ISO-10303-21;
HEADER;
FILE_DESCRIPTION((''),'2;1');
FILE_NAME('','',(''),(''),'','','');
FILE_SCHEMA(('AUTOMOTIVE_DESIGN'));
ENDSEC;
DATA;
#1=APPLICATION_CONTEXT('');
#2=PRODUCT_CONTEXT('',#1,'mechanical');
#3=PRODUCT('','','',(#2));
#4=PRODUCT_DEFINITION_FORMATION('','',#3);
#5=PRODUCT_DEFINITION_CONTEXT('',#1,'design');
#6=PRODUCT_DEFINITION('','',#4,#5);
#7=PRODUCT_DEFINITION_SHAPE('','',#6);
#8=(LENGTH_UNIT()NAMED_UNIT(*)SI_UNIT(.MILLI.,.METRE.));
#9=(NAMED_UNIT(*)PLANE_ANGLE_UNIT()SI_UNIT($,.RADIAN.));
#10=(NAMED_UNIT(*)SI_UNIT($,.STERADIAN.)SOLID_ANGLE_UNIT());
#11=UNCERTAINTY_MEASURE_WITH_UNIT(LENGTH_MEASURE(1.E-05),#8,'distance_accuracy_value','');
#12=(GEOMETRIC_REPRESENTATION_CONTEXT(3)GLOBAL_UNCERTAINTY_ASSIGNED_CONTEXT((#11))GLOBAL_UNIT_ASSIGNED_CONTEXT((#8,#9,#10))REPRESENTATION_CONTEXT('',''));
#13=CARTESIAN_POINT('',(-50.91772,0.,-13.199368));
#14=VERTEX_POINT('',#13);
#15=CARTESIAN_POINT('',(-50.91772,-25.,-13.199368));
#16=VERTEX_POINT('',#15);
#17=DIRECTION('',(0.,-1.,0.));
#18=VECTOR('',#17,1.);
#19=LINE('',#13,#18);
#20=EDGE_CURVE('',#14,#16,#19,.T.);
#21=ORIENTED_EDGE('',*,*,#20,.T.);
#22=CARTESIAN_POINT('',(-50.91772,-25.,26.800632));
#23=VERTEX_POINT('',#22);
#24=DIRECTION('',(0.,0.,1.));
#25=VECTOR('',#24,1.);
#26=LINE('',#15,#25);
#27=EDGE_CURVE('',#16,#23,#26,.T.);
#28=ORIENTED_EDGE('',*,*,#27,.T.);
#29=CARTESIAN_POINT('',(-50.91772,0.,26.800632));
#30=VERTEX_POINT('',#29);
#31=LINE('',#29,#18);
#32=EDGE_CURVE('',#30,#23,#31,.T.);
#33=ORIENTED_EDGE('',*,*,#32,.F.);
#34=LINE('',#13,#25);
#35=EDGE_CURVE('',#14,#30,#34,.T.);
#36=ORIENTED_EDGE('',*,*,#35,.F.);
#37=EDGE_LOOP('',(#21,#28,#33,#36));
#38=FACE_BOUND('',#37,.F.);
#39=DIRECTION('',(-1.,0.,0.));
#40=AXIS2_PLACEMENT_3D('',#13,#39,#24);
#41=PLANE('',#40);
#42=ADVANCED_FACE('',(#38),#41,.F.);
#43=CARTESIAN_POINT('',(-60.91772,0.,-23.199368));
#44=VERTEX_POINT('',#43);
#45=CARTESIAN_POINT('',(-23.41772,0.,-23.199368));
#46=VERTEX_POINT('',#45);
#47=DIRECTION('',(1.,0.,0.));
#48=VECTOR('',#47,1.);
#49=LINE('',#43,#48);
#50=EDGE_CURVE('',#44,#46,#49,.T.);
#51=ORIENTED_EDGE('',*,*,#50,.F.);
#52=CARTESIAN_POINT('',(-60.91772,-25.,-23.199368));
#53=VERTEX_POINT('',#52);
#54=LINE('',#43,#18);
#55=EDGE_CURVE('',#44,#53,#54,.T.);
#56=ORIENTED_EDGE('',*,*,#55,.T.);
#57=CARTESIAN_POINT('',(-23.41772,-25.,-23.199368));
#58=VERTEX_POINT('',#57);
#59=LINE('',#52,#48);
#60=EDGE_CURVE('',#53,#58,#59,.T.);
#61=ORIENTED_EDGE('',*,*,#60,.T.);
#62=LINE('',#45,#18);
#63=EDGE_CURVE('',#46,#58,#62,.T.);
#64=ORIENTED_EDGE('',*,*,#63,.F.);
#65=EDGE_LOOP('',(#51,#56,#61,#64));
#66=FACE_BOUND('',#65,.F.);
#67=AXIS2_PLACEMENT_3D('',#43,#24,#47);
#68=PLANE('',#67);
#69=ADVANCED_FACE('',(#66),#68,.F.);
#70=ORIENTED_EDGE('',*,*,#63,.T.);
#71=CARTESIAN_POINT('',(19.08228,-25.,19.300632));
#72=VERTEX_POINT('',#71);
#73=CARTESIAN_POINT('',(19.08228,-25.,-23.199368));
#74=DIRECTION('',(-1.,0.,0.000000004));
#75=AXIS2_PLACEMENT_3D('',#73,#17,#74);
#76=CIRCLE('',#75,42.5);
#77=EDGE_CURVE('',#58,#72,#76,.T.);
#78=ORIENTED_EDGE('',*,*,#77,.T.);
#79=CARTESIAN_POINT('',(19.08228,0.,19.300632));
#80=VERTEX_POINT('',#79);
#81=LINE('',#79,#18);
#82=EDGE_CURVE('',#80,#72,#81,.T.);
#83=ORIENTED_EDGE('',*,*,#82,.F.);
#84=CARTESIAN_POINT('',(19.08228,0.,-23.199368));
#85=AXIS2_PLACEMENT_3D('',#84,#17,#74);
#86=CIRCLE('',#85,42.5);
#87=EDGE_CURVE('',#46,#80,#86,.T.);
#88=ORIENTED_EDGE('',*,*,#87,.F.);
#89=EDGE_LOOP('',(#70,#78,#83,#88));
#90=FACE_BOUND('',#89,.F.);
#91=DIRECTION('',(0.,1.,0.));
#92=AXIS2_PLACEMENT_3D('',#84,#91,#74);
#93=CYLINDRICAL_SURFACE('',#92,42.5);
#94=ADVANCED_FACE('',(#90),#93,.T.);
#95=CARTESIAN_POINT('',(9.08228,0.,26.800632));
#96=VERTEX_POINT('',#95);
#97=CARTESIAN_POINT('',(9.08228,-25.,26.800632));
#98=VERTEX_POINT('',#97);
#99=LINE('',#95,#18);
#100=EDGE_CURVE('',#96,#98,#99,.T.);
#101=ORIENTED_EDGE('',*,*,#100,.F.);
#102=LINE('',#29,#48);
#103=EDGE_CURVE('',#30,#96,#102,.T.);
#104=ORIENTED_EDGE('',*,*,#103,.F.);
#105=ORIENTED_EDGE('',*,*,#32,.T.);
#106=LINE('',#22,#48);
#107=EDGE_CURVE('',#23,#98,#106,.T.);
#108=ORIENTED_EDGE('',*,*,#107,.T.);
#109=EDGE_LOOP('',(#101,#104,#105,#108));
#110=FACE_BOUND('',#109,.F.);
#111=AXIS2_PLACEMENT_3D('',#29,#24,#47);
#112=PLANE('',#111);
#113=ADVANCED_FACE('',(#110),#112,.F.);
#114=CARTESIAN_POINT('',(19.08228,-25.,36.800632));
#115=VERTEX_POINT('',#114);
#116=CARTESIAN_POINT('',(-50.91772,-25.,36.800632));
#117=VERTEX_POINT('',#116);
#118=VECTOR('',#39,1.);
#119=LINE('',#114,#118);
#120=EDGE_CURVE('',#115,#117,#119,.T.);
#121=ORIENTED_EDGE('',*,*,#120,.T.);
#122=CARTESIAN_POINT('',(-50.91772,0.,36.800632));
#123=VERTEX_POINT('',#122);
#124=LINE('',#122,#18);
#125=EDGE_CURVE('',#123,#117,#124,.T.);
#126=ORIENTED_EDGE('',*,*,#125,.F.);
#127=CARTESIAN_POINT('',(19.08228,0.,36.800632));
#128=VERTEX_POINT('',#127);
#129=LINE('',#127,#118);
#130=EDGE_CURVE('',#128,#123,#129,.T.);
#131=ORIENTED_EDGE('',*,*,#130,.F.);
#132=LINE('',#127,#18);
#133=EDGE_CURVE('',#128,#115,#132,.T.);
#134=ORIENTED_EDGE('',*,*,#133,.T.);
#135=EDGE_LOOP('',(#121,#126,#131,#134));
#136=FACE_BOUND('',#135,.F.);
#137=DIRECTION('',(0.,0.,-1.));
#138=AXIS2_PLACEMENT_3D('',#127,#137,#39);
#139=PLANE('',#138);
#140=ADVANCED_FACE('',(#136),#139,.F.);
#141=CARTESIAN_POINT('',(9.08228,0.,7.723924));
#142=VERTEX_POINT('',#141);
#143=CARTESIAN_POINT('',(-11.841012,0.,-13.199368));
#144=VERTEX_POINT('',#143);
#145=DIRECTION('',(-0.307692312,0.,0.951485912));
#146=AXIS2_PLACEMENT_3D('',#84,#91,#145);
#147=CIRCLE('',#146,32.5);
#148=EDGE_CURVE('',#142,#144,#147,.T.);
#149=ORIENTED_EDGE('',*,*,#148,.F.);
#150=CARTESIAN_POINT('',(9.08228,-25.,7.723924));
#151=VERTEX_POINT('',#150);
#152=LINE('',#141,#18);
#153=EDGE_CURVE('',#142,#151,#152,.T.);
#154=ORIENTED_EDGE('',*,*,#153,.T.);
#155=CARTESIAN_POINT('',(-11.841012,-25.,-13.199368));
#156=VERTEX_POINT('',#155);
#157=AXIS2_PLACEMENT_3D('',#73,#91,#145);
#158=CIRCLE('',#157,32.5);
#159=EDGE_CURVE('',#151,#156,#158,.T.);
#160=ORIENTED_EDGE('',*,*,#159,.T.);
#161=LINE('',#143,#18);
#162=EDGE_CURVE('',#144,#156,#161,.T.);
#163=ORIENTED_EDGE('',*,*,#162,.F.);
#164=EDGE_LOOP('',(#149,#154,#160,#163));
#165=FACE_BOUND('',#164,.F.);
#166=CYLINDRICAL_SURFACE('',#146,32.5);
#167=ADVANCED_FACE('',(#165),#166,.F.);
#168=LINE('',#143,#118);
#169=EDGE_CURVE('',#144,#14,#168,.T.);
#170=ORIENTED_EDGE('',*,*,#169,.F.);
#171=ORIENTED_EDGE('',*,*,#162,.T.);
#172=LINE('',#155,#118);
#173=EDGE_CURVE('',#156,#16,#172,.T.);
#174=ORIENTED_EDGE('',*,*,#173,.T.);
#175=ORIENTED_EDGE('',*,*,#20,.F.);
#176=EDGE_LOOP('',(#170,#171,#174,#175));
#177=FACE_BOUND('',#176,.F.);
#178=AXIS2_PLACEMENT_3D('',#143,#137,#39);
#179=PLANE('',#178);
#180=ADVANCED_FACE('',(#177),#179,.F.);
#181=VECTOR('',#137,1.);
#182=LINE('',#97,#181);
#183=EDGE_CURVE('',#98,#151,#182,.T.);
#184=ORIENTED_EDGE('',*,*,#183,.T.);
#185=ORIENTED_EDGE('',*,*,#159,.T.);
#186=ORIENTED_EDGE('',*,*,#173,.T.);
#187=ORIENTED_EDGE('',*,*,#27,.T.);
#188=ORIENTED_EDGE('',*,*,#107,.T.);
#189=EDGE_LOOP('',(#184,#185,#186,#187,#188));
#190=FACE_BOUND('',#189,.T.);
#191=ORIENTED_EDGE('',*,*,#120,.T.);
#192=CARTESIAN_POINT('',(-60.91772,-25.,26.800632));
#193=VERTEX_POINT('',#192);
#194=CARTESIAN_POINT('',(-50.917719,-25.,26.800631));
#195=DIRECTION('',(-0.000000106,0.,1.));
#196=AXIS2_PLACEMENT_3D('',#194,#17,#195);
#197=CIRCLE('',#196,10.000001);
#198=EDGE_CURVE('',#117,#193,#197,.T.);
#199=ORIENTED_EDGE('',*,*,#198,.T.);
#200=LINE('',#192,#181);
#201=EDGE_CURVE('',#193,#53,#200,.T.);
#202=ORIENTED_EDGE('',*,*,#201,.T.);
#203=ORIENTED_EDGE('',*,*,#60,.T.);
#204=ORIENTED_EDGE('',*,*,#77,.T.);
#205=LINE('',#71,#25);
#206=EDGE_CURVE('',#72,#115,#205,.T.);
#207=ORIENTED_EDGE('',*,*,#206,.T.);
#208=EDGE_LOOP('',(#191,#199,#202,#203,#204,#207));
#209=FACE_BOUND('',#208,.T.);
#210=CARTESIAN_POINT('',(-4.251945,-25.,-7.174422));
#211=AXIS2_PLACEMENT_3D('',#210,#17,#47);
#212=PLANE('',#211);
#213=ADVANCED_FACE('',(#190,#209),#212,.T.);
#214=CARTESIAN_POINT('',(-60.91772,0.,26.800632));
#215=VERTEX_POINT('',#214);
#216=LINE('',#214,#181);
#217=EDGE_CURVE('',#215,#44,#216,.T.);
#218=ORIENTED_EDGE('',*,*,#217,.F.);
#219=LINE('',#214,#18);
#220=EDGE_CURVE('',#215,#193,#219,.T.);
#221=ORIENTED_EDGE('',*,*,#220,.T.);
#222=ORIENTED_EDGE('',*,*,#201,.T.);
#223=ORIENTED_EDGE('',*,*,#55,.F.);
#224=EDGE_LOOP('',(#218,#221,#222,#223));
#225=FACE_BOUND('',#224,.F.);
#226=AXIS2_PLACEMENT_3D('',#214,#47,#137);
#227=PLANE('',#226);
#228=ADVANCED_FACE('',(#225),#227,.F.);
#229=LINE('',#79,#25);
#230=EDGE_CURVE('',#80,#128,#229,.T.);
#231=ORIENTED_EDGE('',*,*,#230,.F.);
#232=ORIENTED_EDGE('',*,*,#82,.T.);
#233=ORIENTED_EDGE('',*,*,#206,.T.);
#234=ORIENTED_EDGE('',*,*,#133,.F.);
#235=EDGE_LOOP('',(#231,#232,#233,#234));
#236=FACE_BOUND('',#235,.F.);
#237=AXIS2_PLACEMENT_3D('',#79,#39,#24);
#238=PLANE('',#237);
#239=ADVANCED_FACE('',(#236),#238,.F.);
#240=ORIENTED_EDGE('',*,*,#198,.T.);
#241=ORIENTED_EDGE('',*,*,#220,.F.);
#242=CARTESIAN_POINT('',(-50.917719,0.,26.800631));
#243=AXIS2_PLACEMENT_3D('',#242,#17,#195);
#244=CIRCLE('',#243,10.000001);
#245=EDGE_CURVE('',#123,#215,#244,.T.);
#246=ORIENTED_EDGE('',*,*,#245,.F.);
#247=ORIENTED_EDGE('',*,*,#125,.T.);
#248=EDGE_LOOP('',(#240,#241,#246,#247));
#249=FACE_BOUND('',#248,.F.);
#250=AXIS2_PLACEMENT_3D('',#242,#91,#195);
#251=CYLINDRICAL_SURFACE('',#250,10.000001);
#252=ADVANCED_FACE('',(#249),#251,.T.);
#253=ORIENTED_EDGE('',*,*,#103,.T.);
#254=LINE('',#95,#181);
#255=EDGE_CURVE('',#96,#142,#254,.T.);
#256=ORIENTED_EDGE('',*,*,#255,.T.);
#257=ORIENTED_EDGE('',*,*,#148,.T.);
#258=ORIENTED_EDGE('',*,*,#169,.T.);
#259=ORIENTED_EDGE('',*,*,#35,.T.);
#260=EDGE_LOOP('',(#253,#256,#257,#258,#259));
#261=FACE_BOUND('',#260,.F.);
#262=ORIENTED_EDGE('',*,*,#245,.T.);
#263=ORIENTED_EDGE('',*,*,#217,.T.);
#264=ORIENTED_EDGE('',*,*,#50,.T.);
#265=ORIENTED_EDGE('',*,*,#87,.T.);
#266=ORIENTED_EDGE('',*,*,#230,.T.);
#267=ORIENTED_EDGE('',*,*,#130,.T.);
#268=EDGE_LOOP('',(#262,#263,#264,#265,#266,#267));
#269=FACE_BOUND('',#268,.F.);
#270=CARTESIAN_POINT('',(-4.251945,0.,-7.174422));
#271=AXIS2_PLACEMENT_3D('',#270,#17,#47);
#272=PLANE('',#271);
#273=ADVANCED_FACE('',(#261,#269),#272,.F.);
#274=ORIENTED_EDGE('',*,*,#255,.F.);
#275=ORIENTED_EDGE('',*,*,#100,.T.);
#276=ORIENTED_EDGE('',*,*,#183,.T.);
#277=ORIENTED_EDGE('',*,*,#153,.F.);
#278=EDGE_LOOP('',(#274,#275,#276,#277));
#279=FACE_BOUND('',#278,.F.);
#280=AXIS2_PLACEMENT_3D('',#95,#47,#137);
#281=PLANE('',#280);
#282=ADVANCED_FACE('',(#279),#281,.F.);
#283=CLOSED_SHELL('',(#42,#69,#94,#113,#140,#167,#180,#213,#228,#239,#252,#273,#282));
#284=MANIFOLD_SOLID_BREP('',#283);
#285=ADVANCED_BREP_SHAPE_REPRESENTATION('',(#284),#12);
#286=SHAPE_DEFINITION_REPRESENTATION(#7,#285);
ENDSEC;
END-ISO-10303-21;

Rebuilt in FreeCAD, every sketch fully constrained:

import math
import FreeCAD as App
import Part
import Sketcher
Q = App.Units.Quantity

doc = App.newDocument("Part")
body = doc.addObject("PartDesign::Body", "Body")

# Sketch on XZ plane
sketch1 = body.newObject("Sketcher::SketchObject", "Sketch")
sketch1.AttachmentSupport = (doc.getObject("XZ_Plane"), [""])
sketch1.MapMode = "FlatFace"
sketch1.addGeometry(Part.LineSegment(App.Vector(19, 37, 0), App.Vector(-51, 37, 0)), False)
sketch1.addGeometry(Part.ArcOfCircle(Part.Circle(App.Vector(-51, 27, 0), App.Vector(0, 0, 1), 10), math.radians(90), math.radians(180)), False)
sketch1.addGeometry(Part.LineSegment(App.Vector(-61, 27, 0), App.Vector(-61, -23, 0)), False)
sketch1.addGeometry(Part.LineSegment(App.Vector(-61, -23, 0), App.Vector(-23, -23, 0)), False)
sketch1.addGeometry(Part.ArcOfCircle(Part.Circle(App.Vector(19, -23, 0), App.Vector(0, 0, 1), 43), math.radians(180), math.radians(450)), False)
sketch1.addGeometry(Part.LineSegment(App.Vector(19, 19, 0), App.Vector(19, 37, 0)), False)
sketch1.addGeometry(Part.LineSegment(App.Vector(-12, -13, 0), App.Vector(-51, -13, 0)), False)
sketch1.addGeometry(Part.LineSegment(App.Vector(-51, -13, 0), App.Vector(-51, 27, 0)), False)
sketch1.addGeometry(Part.LineSegment(App.Vector(-51, 27, 0), App.Vector(9, 27, 0)), False)
sketch1.addGeometry(Part.LineSegment(App.Vector(9, 27, 0), App.Vector(9, 8, 0)), False)
sketch1.addGeometry(Part.ArcOfCircle(Part.Circle(App.Vector(19, -23, 0), App.Vector(0, 0, 1), 32), math.radians(162), math.radians(468)), False)
sketch1.addConstraint(Sketcher.Constraint("Tangent", 0, 2, 1, 1))
sketch1.addConstraint(Sketcher.Constraint("Tangent", 1, 2, 2, 1))
sketch1.addConstraint(Sketcher.Constraint("Coincident", 2, 2, 3, 1))
sketch1.addConstraint(Sketcher.Constraint("Coincident", 3, 2, 4, 1))
sketch1.addConstraint(Sketcher.Constraint("Coincident", 4, 2, 5, 1))
sketch1.addConstraint(Sketcher.Constraint("Coincident", 5, 2, 0, 1))
sketch1.addConstraint(Sketcher.Constraint("Coincident", 6, 2, 7, 1))
sketch1.addConstraint(Sketcher.Constraint("Coincident", 7, 2, 8, 1))
sketch1.addConstraint(Sketcher.Constraint("Coincident", 8, 2, 9, 1))
sketch1.addConstraint(Sketcher.Constraint("Coincident", 9, 2, 10, 2))
sketch1.addConstraint(Sketcher.Constraint("Coincident", 10, 1, 6, 1))
sketch1.addConstraint(Sketcher.Constraint("Horizontal", 0))
sketch1.addConstraint(Sketcher.Constraint("Vertical", 2))
sketch1.addConstraint(Sketcher.Constraint("Horizontal", 3))
sketch1.addConstraint(Sketcher.Constraint("Vertical", 5))
sketch1.addConstraint(Sketcher.Constraint("Horizontal", 6))
sketch1.addConstraint(Sketcher.Constraint("Vertical", 7))
sketch1.addConstraint(Sketcher.Constraint("Horizontal", 8))
sketch1.addConstraint(Sketcher.Constraint("Vertical", 9))
sketch1.addConstraint(Sketcher.Constraint("Coincident", 10, 3, 4, 3))
sketch1.addConstraint(Sketcher.Constraint("Coincident", 7, 2, 1, 3))
sketch1.addConstraint(Sketcher.Constraint("Horizontal", 10, 3, 2, 2))
sketch1.addConstraint(Sketcher.Constraint("Vertical", 10, 3, 4, 2))
sketch1.addConstraint(Sketcher.Constraint("Radius", 1, Q("10.000001 mm")))
sketch1.addConstraint(Sketcher.Constraint("Radius", 4, Q("42.5 mm")))
sketch1.addConstraint(Sketcher.Constraint("Radius", 10, Q("32.5 mm")))
sketch1.addConstraint(Sketcher.Constraint("DistanceX", 0, 2, 0, 1, Q("70 mm")))
sketch1.addConstraint(Sketcher.Constraint("DistanceX", 8, 1, 8, 2, Q("60 mm")))
sketch1.addConstraint(Sketcher.Constraint("DistanceY", 2, 2, 2, 1, Q("50 mm")))
sketch1.addConstraint(Sketcher.Constraint("DistanceY", 7, 1, 7, 2, Q("40 mm")))
sketch1.addConstraint(Sketcher.Constraint("DistanceX", 1, 3, -1, 1, Q("50.917719 mm")))
sketch1.addConstraint(Sketcher.Constraint("DistanceY", -1, 1, 1, 3, Q("26.800631 mm")))
pad1 = body.newObject("PartDesign::Pad", "Pad")
pad1.Profile = sketch1
pad1.Length = 25

doc.recompute()
